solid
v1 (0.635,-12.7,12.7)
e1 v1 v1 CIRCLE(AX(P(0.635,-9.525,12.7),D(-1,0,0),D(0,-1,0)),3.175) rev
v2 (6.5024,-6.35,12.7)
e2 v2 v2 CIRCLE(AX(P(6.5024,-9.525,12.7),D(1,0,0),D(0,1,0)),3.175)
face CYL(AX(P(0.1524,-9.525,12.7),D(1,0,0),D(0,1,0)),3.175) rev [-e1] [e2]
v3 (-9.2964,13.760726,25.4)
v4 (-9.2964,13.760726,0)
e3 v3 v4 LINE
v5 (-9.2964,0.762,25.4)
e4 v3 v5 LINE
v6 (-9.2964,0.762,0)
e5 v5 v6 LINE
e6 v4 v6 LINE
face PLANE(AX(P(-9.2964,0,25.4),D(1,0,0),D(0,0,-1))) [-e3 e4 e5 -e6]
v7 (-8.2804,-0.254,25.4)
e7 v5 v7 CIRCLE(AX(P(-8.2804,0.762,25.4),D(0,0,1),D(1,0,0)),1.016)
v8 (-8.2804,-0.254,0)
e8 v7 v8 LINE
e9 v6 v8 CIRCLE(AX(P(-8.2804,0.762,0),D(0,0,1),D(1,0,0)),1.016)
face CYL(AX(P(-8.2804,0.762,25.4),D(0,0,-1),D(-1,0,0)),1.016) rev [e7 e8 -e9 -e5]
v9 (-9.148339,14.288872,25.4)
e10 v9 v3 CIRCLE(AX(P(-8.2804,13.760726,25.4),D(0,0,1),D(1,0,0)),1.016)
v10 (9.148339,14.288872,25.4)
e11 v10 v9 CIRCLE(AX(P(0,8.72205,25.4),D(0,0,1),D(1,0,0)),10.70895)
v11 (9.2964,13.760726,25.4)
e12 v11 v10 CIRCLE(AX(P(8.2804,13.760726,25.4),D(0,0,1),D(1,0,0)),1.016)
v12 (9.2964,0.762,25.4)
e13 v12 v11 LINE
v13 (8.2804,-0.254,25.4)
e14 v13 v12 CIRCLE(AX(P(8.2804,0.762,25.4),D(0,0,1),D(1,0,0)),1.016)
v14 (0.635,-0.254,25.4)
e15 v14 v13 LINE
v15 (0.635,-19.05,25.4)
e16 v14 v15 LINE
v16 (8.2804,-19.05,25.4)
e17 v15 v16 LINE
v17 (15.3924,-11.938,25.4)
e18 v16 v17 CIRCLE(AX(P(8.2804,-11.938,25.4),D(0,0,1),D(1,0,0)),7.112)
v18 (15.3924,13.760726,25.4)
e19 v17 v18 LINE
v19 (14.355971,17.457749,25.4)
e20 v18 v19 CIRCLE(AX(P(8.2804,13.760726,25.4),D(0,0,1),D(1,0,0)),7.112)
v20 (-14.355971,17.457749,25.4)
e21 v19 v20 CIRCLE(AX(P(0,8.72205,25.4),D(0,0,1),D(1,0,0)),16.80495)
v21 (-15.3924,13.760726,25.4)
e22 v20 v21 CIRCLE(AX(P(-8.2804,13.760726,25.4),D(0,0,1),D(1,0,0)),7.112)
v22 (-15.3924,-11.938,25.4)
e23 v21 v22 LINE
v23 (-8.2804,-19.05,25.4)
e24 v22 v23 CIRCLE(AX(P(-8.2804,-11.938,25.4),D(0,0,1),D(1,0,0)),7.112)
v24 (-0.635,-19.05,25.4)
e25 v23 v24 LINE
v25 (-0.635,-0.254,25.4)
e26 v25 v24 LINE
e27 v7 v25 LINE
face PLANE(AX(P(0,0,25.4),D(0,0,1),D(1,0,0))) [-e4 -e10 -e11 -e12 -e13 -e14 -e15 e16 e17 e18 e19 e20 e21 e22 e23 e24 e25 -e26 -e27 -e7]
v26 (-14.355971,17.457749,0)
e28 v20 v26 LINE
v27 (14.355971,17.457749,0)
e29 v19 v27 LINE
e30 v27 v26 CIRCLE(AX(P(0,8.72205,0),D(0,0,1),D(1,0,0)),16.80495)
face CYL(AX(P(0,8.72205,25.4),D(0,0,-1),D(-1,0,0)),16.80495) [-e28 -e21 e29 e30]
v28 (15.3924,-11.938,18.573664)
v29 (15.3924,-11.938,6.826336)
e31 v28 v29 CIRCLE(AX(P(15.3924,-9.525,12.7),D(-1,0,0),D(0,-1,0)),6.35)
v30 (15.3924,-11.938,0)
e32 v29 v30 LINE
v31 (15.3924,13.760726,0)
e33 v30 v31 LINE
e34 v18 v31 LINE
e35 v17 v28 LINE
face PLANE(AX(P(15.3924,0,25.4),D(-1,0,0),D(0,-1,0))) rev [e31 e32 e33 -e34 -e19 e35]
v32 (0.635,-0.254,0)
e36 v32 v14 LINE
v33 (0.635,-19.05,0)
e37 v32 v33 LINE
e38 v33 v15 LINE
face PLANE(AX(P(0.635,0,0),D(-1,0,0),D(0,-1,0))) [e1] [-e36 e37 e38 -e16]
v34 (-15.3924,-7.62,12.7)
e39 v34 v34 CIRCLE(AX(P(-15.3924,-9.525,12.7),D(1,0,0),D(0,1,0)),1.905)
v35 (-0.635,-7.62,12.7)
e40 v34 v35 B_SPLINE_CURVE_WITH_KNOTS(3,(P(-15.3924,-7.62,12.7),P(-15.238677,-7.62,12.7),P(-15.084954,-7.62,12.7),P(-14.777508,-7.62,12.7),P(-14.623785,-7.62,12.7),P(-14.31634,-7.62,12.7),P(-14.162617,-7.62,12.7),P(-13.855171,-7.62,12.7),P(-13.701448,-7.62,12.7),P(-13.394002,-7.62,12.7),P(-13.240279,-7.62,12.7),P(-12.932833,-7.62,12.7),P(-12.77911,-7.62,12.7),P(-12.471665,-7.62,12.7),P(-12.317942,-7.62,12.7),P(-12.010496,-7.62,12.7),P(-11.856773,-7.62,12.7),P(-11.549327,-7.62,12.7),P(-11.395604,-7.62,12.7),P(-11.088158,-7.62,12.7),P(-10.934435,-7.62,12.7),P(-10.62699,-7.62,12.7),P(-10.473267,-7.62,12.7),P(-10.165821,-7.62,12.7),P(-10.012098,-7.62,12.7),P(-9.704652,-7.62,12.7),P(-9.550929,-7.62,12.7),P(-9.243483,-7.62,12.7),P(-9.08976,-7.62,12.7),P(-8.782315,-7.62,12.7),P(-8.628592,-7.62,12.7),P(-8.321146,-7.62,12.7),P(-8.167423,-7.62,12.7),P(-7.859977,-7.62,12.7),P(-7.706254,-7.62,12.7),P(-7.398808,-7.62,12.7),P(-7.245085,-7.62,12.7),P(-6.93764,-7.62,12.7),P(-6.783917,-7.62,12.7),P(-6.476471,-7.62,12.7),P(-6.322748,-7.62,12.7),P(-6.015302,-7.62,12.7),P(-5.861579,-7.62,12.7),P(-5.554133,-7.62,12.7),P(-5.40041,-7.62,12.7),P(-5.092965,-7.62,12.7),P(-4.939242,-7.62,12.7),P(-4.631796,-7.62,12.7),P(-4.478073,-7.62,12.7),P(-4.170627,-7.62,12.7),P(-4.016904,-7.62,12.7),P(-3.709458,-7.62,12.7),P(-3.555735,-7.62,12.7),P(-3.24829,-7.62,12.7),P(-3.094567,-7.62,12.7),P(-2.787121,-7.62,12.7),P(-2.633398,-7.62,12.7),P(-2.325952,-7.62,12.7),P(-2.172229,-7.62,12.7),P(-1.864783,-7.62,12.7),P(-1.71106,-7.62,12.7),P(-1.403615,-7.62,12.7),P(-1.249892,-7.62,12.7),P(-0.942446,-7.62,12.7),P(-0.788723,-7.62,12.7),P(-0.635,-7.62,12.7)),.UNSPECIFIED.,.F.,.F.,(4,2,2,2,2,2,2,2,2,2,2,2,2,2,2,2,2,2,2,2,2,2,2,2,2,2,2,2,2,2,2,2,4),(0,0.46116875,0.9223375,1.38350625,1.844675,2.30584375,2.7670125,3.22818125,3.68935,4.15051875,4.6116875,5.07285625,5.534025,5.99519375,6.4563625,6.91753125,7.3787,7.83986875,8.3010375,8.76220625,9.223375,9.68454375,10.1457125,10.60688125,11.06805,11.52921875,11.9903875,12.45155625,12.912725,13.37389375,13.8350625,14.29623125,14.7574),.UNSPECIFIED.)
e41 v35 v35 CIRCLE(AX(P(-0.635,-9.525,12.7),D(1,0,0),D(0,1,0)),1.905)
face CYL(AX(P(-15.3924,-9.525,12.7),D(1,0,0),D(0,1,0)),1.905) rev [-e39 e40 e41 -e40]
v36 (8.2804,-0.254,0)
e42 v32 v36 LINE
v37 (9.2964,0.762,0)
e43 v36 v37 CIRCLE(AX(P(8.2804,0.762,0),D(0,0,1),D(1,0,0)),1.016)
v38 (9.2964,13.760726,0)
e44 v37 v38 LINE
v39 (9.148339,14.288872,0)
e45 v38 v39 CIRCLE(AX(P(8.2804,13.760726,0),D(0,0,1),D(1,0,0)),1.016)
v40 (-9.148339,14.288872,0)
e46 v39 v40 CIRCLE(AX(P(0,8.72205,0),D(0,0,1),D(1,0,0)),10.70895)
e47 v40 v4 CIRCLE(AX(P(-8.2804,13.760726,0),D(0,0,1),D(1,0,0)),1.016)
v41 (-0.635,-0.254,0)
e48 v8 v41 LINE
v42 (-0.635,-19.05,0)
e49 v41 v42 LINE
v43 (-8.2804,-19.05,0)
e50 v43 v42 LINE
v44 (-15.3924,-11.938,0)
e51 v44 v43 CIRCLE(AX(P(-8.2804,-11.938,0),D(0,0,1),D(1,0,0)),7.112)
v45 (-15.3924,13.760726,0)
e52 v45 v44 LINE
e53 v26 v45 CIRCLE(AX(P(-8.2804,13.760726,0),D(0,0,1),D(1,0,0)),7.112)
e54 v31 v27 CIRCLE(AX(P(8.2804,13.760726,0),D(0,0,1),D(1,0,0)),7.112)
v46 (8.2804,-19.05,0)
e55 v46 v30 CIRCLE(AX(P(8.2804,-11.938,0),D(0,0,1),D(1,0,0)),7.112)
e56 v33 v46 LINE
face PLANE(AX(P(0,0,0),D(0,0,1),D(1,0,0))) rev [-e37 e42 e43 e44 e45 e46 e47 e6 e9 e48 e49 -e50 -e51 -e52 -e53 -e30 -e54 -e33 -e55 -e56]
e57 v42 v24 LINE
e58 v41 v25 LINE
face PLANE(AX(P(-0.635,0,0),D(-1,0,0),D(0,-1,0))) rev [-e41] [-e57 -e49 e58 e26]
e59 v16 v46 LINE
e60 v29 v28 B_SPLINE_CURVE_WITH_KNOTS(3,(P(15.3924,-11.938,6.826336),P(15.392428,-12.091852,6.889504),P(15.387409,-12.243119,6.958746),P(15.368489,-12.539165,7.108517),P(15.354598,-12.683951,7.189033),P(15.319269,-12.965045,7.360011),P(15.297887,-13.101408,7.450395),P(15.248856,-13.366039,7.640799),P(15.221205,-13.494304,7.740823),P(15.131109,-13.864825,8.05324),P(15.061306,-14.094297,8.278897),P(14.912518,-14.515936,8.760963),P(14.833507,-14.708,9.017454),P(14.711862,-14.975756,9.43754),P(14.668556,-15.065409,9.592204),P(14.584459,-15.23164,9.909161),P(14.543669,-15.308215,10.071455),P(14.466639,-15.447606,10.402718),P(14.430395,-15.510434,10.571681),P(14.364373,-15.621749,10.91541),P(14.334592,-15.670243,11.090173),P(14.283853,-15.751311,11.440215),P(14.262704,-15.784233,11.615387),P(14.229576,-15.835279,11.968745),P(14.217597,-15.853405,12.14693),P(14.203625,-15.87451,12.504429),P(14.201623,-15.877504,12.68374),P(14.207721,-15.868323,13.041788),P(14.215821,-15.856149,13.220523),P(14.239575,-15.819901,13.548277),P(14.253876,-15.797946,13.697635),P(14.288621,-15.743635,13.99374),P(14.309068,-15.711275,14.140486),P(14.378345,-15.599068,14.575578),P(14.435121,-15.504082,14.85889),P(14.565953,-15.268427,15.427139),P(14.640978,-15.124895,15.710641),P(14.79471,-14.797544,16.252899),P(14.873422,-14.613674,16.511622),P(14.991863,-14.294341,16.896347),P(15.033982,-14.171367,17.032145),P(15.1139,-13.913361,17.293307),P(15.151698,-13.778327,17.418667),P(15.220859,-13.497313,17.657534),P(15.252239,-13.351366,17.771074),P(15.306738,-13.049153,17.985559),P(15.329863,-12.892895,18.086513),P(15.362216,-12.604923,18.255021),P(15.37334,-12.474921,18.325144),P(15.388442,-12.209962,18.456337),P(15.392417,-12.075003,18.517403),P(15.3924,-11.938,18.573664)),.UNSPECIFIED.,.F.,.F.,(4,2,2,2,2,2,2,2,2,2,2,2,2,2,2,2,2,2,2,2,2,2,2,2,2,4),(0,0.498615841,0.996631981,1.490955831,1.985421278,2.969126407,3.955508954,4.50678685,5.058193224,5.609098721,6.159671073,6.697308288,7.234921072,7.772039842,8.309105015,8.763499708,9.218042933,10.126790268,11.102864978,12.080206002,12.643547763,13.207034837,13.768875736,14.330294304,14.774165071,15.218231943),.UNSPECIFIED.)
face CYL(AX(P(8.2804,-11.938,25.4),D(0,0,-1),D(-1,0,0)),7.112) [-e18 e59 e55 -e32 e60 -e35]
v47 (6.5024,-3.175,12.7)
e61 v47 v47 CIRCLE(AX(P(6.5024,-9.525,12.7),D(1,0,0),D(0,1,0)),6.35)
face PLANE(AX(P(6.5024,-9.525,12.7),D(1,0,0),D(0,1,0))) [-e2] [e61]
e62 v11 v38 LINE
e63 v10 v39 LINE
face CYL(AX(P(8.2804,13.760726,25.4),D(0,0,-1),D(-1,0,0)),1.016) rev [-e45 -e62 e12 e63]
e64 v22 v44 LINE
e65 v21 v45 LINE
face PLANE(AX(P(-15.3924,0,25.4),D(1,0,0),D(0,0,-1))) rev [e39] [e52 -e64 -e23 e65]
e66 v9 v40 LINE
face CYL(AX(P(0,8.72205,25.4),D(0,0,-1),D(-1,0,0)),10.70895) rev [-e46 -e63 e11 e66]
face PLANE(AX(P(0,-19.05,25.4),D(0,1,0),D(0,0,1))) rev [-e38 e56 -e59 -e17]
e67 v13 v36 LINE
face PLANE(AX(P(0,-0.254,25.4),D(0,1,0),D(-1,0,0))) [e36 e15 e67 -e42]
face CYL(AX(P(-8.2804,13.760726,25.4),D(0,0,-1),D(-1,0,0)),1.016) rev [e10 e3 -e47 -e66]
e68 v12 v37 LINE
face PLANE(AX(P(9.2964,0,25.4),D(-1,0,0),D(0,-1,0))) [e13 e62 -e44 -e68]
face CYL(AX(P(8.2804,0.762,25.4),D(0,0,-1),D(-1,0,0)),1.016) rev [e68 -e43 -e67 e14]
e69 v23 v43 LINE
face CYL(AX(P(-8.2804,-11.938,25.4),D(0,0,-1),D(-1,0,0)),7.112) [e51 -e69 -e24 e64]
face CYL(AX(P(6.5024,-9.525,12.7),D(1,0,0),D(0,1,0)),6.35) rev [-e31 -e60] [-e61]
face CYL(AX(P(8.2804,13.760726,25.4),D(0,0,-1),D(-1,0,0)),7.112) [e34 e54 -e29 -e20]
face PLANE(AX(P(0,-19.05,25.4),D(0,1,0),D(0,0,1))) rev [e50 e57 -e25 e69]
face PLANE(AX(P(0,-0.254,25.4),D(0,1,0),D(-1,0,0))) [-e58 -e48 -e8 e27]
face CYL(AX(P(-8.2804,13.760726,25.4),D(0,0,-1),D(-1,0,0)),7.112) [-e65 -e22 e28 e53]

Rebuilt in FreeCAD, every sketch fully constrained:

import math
import FreeCAD as App
import Part
import Sketcher
from FreeCAD import Vector
Q = App.Units.Quantity


def add_polygon(sketch, points):
    """Adds a closed chain of lines whose ends are joined by coincident constraints."""
    first, n = sketch.GeometryCount, len(points)
    for a, b in zip(points, points[1:] + points[:1]):
        sketch.addGeometry(Part.LineSegment(App.Vector(*a, 0), App.Vector(*b, 0)), False)
    for i in range(n):
        sketch.addConstraint(Sketcher.Constraint("Coincident", first + i, 2, first + (i + 1) % n, 1))

doc = App.newDocument("Part")
body = doc.addObject("PartDesign::Body", "Body")

# Sketch on XY plane
sketch1 = body.newObject("Sketcher::SketchObject", "Sketch")
sketch1.AttachmentSupport = (doc.getObject("XY_Plane"), [""])
sketch1.MapMode = "FlatFace"
sketch1.addGeometry([
    Part.ArcOfCircle(Part.Circle(Vector(-8.2804, 13.760726, 0), Vector(0, 0, 1), 7.112), math.radians(148.679224), math.radians(180)),  # 0
    Part.LineSegment(Vector(-15.3924, 13.760726, 0), Vector(-15.3924, -11.938, 0)),  # 1
    Part.ArcOfCircle(Part.Circle(Vector(-8.2804, -11.938, 0), Vector(0, 0, 1), 7.112), math.radians(180), math.radians(270)),  # 2
    Part.LineSegment(Vector(-8.2804, -19.05, 0), Vector(8.2804, -19.05, 0)),  # 3
    Part.ArcOfCircle(Part.Circle(Vector(8.2804, -11.938, 0), Vector(0, 0, 1), 7.112), math.radians(-90), math.radians(0)),  # 4
    Part.LineSegment(Vector(15.3924, -11.938, 0), Vector(15.3924, 13.760726, 0)),  # 5
    Part.ArcOfCircle(Part.Circle(Vector(8.2804, 13.760726, 0), Vector(0, 0, 1), 7.112), math.radians(0), math.radians(31.320776)),  # 6
    Part.ArcOfCircle(Part.Circle(Vector(0, 8.72205, 0), Vector(0, 0, 1), 16.80495), math.radians(31.320776), math.radians(148.679224)),  # 7
    Part.ArcOfCircle(Part.Circle(Vector(-8.2804, 0.762, 0), Vector(0, 0, 1), 1.016), math.radians(180), math.radians(270)),  # 8
    Part.LineSegment(Vector(-9.2964, 0.762, 0), Vector(-9.2964, 13.760726, 0)),  # 9
    Part.ArcOfCircle(Part.Circle(Vector(-8.2804, 13.760726, 0), Vector(0, 0, 1), 1.016), math.radians(148.679224), math.radians(180)),  # 10
    Part.ArcOfCircle(Part.Circle(Vector(0, 8.72205, 0), Vector(0, 0, 1), 10.70895), math.radians(31.320776), math.radians(148.679224)),  # 11
    Part.ArcOfCircle(Part.Circle(Vector(8.2804, 13.760726, 0), Vector(0, 0, 1), 1.016), math.radians(0), math.radians(31.320776)),  # 12
    Part.LineSegment(Vector(9.2964, 13.760726, 0), Vector(9.2964, 0.762, 0)),  # 13
    Part.ArcOfCircle(Part.Circle(Vector(8.2804, 0.762, 0), Vector(0, 0, 1), 1.016), math.radians(-90), math.radians(0)),  # 14
    Part.LineSegment(Vector(8.2804, -0.254, 0), Vector(-8.2804, -0.254, 0)),  # 15
], False)
sketch1.addConstraint([
    Sketcher.Constraint("Tangent", 0, 2, 1, 1),
    Sketcher.Constraint("Tangent", 1, 2, 2, 1),
    Sketcher.Constraint("Tangent", 2, 2, 3, 1),
    Sketcher.Constraint("Tangent", 3, 2, 4, 1),
    Sketcher.Constraint("Tangent", 4, 2, 5, 1),
    Sketcher.Constraint("Tangent", 5, 2, 6, 1),
    Sketcher.Constraint("Tangent", 6, 2, 7, 1),
    Sketcher.Constraint("Tangent", 7, 2, 0, 1),
    Sketcher.Constraint("Tangent", 8, 1, 9, 1),
    Sketcher.Constraint("Tangent", 9, 2, 10, 2),
    Sketcher.Constraint("Tangent", 10, 1, 11, 2),
    Sketcher.Constraint("Tangent", 11, 1, 12, 2),
    Sketcher.Constraint("Tangent", 12, 1, 13, 1),
    Sketcher.Constraint("Tangent", 13, 2, 14, 2),
    Sketcher.Constraint("Tangent", 14, 1, 15, 1),
    Sketcher.Constraint("Tangent", 15, 2, 8, 2),
    Sketcher.Constraint("Vertical", 1),
    Sketcher.Constraint("Horizontal", 3),
    Sketcher.Constraint("Vertical", 5),
    Sketcher.Constraint("Vertical", 9),
    Sketcher.Constraint("Vertical", 13),
    Sketcher.Constraint("Horizontal", 15),
    Sketcher.Constraint("Coincident", 10, 3, 0, 3),
    Sketcher.Constraint("Coincident", 11, 3, 7, 3),
    Sketcher.Constraint("Coincident", 12, 3, 6, 3),
    Sketcher.Constraint("Equal", 0, 2),
    Sketcher.Constraint("Equal", 2, 4),
    Sketcher.Constraint("Equal", 4, 6),
    Sketcher.Constraint("Equal", 8, 10),
    Sketcher.Constraint("Equal", 12, 14),
    Sketcher.Constraint("Symmetric", 0, 3, 6, 3, -2),
    Sketcher.Constraint("Radius", 0, Q("0.28 in")),
    Sketcher.Constraint("Radius", 8, Q("0.04 in")),
    Sketcher.Constraint("DistanceY", 2, 3, 8, 3, Q("0.5 in")),
    Sketcher.Constraint("DistanceX", 3, 1, 3, 2, Q("0.652 in")),
    Sketcher.Constraint("DistanceY", 2, 3, -1, 1, Q("0.47 in")),
    Sketcher.Constraint("Radius", 7, 16.80495),
    Sketcher.Constraint("DistanceY", 1, 2, 1, 1, 25.698726),
])
pad1 = body.newObject("PartDesign::Pad", "Pad")
pad1.Profile = sketch1
pad1.Length = Q("1 in")

# Sketch on YZ plane
sketch2 = body.newObject("Sketcher::SketchObject", "Sketch001")
sketch2.AttachmentSupport = (doc.getObject("YZ_Plane"), [""])
sketch2.MapMode = "FlatFace"
sketch2.AttachmentOffset = App.Placement(Vector(0, 0, 0.606 * 25.4), App.Rotation())
sketch2.addGeometry(Part.Circle(Vector(-9.525, 12.7, 0), Vector(0, 0, 1), 6.35), False)
sketch2.addConstraint([
    Sketcher.Constraint("Diameter", 0, Q("0.5 in")),
    Sketcher.Constraint("DistanceY", -1, 1, 0, 3, Q("0.5 in")),
    Sketcher.Constraint("DistanceX", 0, 3, -1, 1, Q("0.375 in")),
])
pocket1 = body.newObject("PartDesign::Pocket", "Pocket")
pocket1.Profile = sketch2
pocket1.Length = Q("0.35 in")

# Sketch on YZ plane
sketch3 = body.newObject("Sketcher::SketchObject", "Sketch002")
sketch3.AttachmentSupport = (doc.getObject("YZ_Plane"), [""])
sketch3.MapMode = "FlatFace"
sketch3.AttachmentOffset = App.Placement(Vector(0, 0, 0.256 * 25.4), App.Rotation())
sketch3.addGeometry(Part.Circle(Vector(-9.525, 12.7, 0), Vector(0, 0, 1), 3.175), False)
sketch3.addConstraint([
    Sketcher.Constraint("Diameter", 0, Q("0.25 in")),
    Sketcher.Constraint("DistanceY", -1, 1, 0, 3, Q("0.5 in")),
    Sketcher.Constraint("DistanceX", 0, 3, -1, 1, Q("0.375 in")),
])
pocket2 = body.newObject("PartDesign::Pocket", "Pocket001")
pocket2.Profile = sketch3
pocket2.Length = Q("0.25 in")

# Sketch on XY plane
sketch4 = body.newObject("Sketcher::SketchObject", "Sketch003")
sketch4.AttachmentSupport = (doc.getObject("XY_Plane"), [""])
sketch4.MapMode = "FlatFace"
sketch4.AttachmentOffset = App.Placement(Vector(0, 0, 1 * 25.4), App.Rotation())
add_polygon(sketch4, [(0.635, -19.05), (0.635, -0.254), (-0.635, -0.254), (-0.635, -19.05)])  # lines 0-3
sketch4.addConstraint([
    Sketcher.Constraint("Vertical", 0),
    Sketcher.Constraint("Horizontal", 1),
    Sketcher.Constraint("Vertical", 2),
    Sketcher.Constraint("Horizontal", 3),
    Sketcher.Constraint("DistanceX", 1, 2, 1, 1, Q("0.05 in")),
    Sketcher.Constraint("DistanceY", 0, 1, 0, 2, Q("0.74 in")),
    Sketcher.Constraint("DistanceY", 0, 2, -1, 1, Q("0.01 in")),
    Sketcher.Constraint("DistanceX", -1, 1, 0, 2, Q("0.025 in")),
])
pocket3 = body.newObject("PartDesign::Pocket", "Pocket002")
pocket3.Profile = sketch4
pocket3.Type = "ThroughAll"

# Sketch on YZ plane
sketch5 = body.newObject("Sketcher::SketchObject", "Sketch004")
sketch5.AttachmentSupport = (doc.getObject("YZ_Plane"), [""])
sketch5.MapMode = "FlatFace"
sketch5.AttachmentOffset = App.Placement(Vector(0, 0, -0.025 * 25.4), App.Rotation())
sketch5.addGeometry(Part.Circle(Vector(-9.525, 12.7, 0), Vector(0, 0, 1), 1.905), False)
sketch5.addConstraint([
    Sketcher.Constraint("Diameter", 0, Q("0.15 in")),
    Sketcher.Constraint("DistanceY", -1, 1, 0, 3, Q("0.5 in")),
    Sketcher.Constraint("DistanceX", 0, 3, -1, 1, Q("0.375 in")),
])
pocket4 = body.newObject("PartDesign::Pocket", "Pocket003")
pocket4.Profile = sketch5
pocket4.Type = "ThroughAll"

doc.recompute()
